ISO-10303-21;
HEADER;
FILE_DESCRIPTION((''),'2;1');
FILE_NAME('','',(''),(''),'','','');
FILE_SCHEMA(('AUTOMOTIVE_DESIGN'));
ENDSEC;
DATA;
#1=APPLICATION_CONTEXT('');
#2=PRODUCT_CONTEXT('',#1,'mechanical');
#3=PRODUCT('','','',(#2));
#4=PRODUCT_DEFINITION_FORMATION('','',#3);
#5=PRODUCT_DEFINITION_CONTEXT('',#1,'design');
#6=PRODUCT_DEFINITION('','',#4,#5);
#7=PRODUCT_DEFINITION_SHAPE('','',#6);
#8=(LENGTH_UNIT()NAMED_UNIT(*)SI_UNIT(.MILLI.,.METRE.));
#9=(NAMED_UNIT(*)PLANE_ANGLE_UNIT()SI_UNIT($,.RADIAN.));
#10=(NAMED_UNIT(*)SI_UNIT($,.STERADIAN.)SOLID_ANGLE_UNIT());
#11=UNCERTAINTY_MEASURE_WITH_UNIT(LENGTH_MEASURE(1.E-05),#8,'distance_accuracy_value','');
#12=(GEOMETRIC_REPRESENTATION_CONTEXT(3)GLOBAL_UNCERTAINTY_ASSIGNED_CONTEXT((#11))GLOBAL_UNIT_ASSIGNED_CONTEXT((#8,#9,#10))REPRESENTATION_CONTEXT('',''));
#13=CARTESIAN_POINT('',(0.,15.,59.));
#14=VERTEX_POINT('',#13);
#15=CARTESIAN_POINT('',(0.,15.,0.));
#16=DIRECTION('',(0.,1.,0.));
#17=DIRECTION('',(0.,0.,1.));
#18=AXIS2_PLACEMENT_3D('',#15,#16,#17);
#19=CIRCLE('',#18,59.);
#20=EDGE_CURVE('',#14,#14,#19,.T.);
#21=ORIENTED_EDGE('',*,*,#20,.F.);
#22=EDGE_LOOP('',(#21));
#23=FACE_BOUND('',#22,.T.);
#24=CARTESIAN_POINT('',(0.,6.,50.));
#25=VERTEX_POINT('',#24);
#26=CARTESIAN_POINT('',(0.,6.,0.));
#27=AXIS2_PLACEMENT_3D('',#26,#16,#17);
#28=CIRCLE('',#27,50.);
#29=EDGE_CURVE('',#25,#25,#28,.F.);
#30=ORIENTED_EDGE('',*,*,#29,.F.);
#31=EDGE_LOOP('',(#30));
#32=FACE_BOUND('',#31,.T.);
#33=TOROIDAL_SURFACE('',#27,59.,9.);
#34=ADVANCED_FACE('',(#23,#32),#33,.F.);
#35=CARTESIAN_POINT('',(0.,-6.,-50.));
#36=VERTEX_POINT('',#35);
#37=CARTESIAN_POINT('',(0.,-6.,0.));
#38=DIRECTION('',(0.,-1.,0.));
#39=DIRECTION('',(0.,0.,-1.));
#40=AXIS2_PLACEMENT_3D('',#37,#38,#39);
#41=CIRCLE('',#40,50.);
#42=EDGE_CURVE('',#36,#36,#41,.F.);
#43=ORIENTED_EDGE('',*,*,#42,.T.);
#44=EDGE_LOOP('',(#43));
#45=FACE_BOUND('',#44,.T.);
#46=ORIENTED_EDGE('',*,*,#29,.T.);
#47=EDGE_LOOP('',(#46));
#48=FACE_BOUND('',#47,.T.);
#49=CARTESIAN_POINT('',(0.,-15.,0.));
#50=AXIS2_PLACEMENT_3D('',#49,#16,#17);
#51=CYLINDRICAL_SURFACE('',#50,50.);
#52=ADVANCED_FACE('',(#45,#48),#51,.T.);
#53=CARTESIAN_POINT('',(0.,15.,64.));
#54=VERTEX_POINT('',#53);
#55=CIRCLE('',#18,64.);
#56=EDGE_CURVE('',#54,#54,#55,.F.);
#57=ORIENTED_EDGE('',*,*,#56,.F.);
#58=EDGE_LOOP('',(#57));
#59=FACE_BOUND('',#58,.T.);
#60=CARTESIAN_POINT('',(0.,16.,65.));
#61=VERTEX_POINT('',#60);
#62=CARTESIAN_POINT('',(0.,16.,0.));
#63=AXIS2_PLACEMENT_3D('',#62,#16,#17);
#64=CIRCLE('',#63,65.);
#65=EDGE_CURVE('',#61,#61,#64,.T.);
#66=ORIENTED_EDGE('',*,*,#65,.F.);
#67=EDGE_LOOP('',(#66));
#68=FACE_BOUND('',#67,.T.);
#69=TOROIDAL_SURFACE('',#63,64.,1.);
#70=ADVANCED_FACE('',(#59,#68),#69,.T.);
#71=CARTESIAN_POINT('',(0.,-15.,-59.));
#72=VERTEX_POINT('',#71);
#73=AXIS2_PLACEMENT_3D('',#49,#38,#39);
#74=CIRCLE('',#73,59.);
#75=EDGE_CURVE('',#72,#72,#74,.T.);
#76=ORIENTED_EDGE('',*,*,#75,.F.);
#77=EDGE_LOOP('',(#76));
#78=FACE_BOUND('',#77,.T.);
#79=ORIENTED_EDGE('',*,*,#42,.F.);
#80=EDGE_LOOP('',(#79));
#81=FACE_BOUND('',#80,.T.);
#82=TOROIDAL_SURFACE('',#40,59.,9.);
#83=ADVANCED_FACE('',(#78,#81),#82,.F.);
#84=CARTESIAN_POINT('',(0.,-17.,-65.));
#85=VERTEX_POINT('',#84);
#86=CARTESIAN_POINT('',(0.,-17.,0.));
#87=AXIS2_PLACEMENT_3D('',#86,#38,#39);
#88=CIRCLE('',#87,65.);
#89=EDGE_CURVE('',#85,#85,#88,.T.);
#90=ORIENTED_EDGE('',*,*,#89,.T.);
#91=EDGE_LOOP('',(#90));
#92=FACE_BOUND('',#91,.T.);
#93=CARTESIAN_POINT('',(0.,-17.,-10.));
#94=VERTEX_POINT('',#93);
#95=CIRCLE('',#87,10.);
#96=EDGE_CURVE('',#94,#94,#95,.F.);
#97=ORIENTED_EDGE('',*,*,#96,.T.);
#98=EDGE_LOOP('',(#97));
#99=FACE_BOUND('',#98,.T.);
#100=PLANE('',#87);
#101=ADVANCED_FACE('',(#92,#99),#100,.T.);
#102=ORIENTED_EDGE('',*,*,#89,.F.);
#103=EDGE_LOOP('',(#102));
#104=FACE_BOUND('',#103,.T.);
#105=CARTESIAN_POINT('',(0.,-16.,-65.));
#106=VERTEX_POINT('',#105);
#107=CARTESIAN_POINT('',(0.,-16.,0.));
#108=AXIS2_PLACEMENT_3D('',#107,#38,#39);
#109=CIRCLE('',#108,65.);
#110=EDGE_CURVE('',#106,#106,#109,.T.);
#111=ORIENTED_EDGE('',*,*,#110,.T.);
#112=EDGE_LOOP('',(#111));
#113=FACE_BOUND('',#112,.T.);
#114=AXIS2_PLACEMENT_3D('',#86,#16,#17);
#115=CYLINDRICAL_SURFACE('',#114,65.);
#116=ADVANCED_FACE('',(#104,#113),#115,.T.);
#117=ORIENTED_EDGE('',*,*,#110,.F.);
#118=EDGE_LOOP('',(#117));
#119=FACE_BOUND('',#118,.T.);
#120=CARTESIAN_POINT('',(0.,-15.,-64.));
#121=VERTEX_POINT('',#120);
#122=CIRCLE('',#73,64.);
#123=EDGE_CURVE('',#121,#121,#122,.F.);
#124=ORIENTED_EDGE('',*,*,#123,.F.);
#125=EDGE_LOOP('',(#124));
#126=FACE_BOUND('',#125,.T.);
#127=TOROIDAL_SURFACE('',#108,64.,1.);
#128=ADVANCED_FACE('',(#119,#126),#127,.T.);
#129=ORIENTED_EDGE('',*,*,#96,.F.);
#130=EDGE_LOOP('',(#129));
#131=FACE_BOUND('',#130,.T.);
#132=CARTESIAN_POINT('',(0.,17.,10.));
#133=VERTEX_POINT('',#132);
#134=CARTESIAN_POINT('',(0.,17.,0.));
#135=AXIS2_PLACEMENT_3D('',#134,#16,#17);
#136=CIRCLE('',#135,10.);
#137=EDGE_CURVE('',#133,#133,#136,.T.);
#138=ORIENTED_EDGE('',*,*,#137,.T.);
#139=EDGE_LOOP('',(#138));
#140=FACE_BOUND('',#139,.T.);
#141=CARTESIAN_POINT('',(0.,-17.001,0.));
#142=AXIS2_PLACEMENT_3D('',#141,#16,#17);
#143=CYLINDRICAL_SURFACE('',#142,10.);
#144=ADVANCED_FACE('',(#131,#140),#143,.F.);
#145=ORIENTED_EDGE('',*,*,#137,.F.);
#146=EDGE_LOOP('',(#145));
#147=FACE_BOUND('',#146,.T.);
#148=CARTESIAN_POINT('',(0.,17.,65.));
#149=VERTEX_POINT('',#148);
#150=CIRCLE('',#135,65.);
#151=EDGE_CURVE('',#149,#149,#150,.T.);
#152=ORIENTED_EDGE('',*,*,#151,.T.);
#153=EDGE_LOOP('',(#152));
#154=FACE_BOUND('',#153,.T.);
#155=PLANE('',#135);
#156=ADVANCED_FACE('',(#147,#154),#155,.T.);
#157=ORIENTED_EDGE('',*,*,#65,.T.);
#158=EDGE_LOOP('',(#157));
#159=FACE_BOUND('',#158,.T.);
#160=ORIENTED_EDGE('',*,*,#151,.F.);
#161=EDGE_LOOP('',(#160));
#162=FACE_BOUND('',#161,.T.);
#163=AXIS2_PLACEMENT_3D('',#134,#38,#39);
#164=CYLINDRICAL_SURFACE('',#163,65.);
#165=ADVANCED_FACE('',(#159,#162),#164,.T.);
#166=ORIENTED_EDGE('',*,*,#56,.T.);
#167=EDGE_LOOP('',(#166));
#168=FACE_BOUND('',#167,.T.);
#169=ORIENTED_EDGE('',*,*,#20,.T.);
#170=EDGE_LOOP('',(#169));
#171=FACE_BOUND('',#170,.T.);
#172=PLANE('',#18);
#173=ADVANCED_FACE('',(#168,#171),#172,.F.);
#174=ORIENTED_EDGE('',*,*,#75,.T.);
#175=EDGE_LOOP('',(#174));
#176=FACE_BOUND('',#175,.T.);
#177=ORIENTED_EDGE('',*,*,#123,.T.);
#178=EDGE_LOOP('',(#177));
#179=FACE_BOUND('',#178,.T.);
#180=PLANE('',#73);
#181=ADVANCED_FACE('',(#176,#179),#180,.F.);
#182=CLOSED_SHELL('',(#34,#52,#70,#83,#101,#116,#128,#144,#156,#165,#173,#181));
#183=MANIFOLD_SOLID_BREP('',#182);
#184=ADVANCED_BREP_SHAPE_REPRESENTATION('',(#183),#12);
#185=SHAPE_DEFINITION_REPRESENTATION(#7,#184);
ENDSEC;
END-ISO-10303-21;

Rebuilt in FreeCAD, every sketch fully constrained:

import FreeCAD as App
import Part
import Sketcher


def edges_at(feature, points):
    """Names of the edges that pass closest to the given points."""
    edges = feature.Shape.Edges
    near = lambda p: min(range(len(edges)), key=lambda i: edges[i].distToShape(Part.Vertex(*p))[0])
    return sorted({f"Edge{near(p) + 1}" for p in points})

doc = App.newDocument("Part")
body = doc.addObject("PartDesign::Body", "Body")

sketch1 = body.newObject("Sketcher::SketchObject", "Sketch")
sketch1.AttachmentSupport = (doc.getObject("XZ_Plane"), [""])
sketch1.MapMode = "FlatFace"
sketch1.addGeometry(Part.Circle(App.Vector(0, 0, 0), App.Vector(0, 0, 1), 50), False)
sketch1.addConstraint([
    Sketcher.Constraint("Coincident", 0, 3, -1, 1),
    Sketcher.Constraint("Diameter", 0, 100.0),
])
pad1 = body.newObject("PartDesign::Pad", "Pad")
pad1.Profile = sketch1
pad1.Type = "TwoLengths"
pad1.Length = 15
pad1.Length2 = 15
pad1.Reversed = True

sketch2 = body.newObject("Sketcher::SketchObject", "Sketch001")
sketch2.AttachmentSupport = (doc.getObject("XZ_Plane"), [""])
sketch2.MapMode = "FlatFace"
sketch2.AttachmentOffset = App.Placement(App.Vector(0, 0, 15), App.Rotation())
sketch2.addGeometry(Part.Circle(App.Vector(0, 0, 0), App.Vector(0, 0, 1), 65), False)
sketch2.addConstraint([
    Sketcher.Constraint("Coincident", 0, 3, -1, 1),
    Sketcher.Constraint("Diameter", 0, 130.0),
])
pad2 = body.newObject("PartDesign::Pad", "Pad001")
pad2.Profile = sketch2
pad2.Length = 2

sketch3 = body.newObject("Sketcher::SketchObject", "Sketch002")
sketch3.AttachmentSupport = (doc.getObject("XZ_Plane"), [""])
sketch3.MapMode = "FlatFace"
sketch3.AttachmentOffset = App.Placement(App.Vector(0, 0, -15), App.Rotation())
sketch3.addGeometry(Part.Circle(App.Vector(0, 0, 0), App.Vector(0, 0, 1), 65), False)
sketch3.addConstraint([
    Sketcher.Constraint("Coincident", 0, 3, -1, 1),
    Sketcher.Constraint("Diameter", 0, 130.0),
])
pad3 = body.newObject("PartDesign::Pad", "Pad002")
pad3.Profile = sketch3
pad3.Length = 2
pad3.Reversed = True
doc.recompute()

fillet = body.newObject("PartDesign::Fillet", "Fillet")
fillet.Base = (pad3, edges_at(pad3, [(-50, -15, 0)]))
fillet.Radius = 9
doc.recompute()

fillet2 = body.newObject("PartDesign::Fillet", "Fillet001")
fillet2.Base = (fillet, edges_at(fillet, [(-65, -15, 0)]))
fillet2.Radius = 1
doc.recompute()

fillet3 = body.newObject("PartDesign::Fillet", "Fillet002")
fillet3.Base = (fillet2, edges_at(fillet2, [(-65, 15, 0)]))
fillet3.Radius = 1
doc.recompute()

fillet4 = body.newObject("PartDesign::Fillet", "Fillet003")
fillet4.Base = (fillet3, edges_at(fillet3, [(-50, 15, 0)]))
fillet4.Radius = 9

sketch4 = body.newObject("Sketcher::SketchObject", "Sketch003")
sketch4.AttachmentSupport = (doc.getObject("XZ_Plane"), [""])
sketch4.MapMode = "FlatFace"
sketch4.AttachmentOffset = App.Placement(App.Vector(0, 0, -17), App.Rotation())
sketch4.addGeometry(Part.Circle(App.Vector(0, 0, 0), App.Vector(0, 0, 1), 10), False)
sketch4.addConstraint([
    Sketcher.Constraint("Coincident", 0, 3, -1, 1),
    Sketcher.Constraint("Diameter", 0, 20.0),
])
pocket1 = body.newObject("PartDesign::Pocket", "Pocket")
pocket1.Profile = sketch4
pocket1.Type = "UpToFirst"
pocket1.Reversed = True

doc.recompute()
